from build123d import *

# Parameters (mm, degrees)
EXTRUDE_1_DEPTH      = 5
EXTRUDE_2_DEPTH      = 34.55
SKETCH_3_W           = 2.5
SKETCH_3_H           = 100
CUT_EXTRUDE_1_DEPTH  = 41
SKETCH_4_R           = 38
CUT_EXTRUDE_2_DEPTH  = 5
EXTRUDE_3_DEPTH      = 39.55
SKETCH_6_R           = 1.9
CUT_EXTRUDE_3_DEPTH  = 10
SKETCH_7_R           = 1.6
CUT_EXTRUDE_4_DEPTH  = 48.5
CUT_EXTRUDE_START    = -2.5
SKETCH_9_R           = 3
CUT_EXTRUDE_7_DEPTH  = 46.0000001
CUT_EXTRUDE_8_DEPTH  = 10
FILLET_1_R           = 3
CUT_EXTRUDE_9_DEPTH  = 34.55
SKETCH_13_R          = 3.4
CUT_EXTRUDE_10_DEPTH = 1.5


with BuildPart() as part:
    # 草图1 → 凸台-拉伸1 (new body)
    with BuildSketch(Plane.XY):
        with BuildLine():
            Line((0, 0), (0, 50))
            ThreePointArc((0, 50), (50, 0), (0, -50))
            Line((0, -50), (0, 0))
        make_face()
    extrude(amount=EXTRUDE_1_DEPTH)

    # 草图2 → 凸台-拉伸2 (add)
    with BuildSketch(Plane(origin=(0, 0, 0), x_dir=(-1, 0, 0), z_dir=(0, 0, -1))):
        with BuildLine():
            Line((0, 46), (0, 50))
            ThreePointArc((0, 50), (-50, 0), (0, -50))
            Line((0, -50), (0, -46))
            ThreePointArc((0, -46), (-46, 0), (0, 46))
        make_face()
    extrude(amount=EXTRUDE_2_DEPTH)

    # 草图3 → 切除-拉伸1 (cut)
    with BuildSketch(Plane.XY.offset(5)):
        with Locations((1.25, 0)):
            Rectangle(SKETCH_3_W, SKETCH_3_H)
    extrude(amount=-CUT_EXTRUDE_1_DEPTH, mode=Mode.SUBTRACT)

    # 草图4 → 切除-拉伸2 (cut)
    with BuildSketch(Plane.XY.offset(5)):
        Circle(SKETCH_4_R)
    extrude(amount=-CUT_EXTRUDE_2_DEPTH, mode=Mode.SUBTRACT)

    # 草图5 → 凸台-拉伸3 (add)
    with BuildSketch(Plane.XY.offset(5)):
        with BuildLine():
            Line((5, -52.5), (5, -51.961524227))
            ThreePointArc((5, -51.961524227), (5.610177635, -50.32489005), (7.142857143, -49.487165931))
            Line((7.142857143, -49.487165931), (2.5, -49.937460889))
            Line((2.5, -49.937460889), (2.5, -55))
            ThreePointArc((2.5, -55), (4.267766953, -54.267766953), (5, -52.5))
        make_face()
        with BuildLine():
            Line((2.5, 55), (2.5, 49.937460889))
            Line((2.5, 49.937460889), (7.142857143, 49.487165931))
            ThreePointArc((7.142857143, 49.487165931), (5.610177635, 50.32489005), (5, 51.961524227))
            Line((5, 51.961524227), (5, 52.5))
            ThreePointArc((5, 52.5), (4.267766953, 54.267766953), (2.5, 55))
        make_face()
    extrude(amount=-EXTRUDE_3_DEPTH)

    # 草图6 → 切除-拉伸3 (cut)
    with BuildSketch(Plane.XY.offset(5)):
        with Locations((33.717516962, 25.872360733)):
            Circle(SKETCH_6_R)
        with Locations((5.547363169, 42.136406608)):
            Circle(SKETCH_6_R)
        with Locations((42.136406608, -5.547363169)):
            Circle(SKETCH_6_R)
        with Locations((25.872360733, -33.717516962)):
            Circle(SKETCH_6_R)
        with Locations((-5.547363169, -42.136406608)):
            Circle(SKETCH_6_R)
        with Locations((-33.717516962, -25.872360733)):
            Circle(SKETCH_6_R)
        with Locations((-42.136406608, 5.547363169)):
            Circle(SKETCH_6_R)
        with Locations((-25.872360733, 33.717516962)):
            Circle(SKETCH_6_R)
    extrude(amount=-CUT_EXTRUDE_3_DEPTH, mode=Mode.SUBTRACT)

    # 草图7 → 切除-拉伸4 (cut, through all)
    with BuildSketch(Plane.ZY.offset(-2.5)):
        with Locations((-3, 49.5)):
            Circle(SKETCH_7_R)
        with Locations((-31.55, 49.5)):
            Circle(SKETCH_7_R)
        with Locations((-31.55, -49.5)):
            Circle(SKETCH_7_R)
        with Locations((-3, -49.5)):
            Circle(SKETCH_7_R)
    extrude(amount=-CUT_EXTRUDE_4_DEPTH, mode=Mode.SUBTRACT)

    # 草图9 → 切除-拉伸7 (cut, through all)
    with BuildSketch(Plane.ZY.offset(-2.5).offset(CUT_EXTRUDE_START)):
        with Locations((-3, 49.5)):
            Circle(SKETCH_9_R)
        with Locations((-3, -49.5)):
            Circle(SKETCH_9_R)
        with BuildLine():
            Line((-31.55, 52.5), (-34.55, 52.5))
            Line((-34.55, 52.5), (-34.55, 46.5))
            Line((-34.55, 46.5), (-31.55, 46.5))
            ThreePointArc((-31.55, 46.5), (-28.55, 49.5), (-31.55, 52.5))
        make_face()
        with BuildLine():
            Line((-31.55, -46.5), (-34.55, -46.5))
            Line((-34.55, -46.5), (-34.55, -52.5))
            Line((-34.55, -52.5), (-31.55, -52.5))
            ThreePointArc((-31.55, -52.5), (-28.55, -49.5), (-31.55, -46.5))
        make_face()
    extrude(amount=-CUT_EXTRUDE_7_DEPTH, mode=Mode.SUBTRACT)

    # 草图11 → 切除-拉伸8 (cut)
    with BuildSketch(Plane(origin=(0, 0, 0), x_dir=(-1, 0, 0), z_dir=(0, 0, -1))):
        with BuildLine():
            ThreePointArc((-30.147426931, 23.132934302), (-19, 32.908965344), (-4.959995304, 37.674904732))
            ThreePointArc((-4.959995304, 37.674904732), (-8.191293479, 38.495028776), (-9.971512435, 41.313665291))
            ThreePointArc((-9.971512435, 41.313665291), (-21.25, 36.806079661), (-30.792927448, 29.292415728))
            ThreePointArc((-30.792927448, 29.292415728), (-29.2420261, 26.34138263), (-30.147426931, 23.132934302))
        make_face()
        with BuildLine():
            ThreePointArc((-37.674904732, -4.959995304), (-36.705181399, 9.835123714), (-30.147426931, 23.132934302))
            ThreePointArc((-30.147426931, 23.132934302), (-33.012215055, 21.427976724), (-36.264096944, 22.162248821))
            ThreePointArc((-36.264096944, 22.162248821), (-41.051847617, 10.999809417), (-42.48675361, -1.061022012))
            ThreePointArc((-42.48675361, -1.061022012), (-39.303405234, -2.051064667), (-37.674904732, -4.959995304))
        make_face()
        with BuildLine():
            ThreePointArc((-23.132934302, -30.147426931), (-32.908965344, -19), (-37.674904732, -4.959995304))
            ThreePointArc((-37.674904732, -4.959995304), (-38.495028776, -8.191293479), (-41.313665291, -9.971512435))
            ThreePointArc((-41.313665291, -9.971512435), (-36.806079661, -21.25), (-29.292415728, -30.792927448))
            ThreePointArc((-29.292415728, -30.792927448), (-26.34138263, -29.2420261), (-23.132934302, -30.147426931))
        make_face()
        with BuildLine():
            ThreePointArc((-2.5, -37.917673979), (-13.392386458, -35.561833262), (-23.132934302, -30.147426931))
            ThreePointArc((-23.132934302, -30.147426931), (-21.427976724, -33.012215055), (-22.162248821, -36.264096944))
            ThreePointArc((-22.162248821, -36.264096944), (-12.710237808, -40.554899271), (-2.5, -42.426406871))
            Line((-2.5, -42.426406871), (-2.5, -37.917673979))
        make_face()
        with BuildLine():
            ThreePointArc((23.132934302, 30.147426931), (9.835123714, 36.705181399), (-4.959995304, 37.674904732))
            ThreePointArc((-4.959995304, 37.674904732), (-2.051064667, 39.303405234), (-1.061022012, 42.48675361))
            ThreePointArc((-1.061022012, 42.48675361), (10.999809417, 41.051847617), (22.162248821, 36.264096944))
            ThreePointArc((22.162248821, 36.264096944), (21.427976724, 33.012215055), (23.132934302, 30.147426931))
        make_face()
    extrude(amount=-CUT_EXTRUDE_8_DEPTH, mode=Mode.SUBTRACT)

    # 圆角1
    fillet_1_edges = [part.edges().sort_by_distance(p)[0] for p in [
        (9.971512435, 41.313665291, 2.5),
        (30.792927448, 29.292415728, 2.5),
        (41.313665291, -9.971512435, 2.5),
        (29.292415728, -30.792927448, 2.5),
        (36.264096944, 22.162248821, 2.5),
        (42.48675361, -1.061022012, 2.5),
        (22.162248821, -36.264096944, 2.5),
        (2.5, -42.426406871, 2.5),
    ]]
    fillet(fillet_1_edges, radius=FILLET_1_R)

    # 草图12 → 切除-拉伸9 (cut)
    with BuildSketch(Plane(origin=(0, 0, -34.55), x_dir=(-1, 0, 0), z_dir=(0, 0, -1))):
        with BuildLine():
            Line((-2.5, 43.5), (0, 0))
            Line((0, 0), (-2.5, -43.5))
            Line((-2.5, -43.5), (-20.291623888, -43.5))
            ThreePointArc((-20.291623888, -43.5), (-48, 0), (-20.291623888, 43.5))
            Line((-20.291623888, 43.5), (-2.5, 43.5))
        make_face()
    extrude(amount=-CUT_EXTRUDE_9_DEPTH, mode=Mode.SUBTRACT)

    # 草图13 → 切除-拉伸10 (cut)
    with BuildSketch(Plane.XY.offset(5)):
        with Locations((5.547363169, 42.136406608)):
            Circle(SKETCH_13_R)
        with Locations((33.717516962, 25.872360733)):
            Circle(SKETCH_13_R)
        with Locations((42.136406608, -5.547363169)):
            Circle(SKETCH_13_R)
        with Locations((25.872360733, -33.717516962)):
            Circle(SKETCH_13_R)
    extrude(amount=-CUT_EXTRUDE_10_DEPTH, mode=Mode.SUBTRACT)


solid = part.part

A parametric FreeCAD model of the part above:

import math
import FreeCAD as App
import Part
import Sketcher

V = App.Vector


def edges_at(feature, points):
    """Names of the edges that pass closest to the given points."""
    edges = feature.Shape.Edges
    near = lambda p: min(range(len(edges)), key=lambda i: edges[i].distToShape(Part.Vertex(*p))[0])
    return sorted({f"Edge{near(p) + 1}" for p in points})


def add_polygon(sketch, points):
    """Adds a closed chain of lines whose ends are joined by coincident constraints."""
    first, n = sketch.GeometryCount, len(points)
    for a, b in zip(points, points[1:] + points[:1]):
        sketch.addGeometry(Part.LineSegment(App.Vector(*a, 0), App.Vector(*b, 0)), False)
    for i in range(n):
        sketch.addConstraint(Sketcher.Constraint("Coincident", first + i, 2, first + (i + 1) % n, 1))

doc = App.newDocument("Part")
params = doc.addObject("Spreadsheet::Sheet", "Params")
for row, (alias, value) in enumerate([
    ("sketch1_radius", "50 mm"),
    ("pad1_length", "5 mm"),
    ("sketch2_radius", "50 mm"),
    ("sketch2_radius2", "46 mm"),
    ("pad2_length", "34.55 mm"),
    ("sketch3_height", "100 mm"),
    ("sketch3_width", "2.5 mm"),
    ("pocket1_length", "41 mm"),
    ("sketch4_diameter", "76 mm"),
    ("pocket2_length", "5 mm"),
    ("sketch5_radius", "2.5 mm"),
    ("pad3_length", "39.55 mm"),
    ("sketch6_diameter", "3.8 mm"),
    ("pocket3_length", "10 mm"),
    ("sketch7_diameter", "3.2 mm"),
    ("sketch8_diameter", "6 mm"),
    ("sketch8_height", "3 mm"),
    ("sketch9_radius", "38 mm"),
    ("sketch9_radius2", "4.5 mm"),
    ("sketch9_radius3", "42.5 mm"),
    ("pocket6_length", "10 mm"),
    ("fillet_radius", "3 mm"),
    ("sketch10_radius", "48 mm"),
    ("pocket7_length", "34.55 mm"),
    ("sketch11_diameter", "6.8 mm"),
    ("pocket8_length", "1.5 mm"),
], start=1):
    params.set(f"A{row}", alias)
    params.set(f"B{row}", "=" + value)
    params.setAlias(f"B{row}", alias)

body = doc.addObject("PartDesign::Body", "Body")

# Sketch on XY plane
sketch1 = body.newObject("Sketcher::SketchObject", "Sketch")
sketch1.AttachmentSupport = (doc.getObject("XY_Plane"), [""])
sketch1.MapMode = "FlatFace"
sketch1.addGeometry(Part.ArcOfCircle(Part.Circle(V(0, 0, 0), V(0, 0, 1), 50), math.radians(-90), math.radians(90)), False)
sketch1.addGeometry(Part.LineSegment(V(0, 50, 0), V(0, -50, 0)), False)
sketch1.addConstraint(Sketcher.Constraint("Coincident", 0, 1, 1, 2))
sketch1.addConstraint(Sketcher.Constraint("Coincident", 1, 1, 0, 2))
sketch1.addConstraint(Sketcher.Constraint("Vertical", 1))
sketch1.addConstraint(Sketcher.Constraint("Coincident", 0, 3, -1, 1))
sketch1.addConstraint(Sketcher.Constraint("PointOnObject", 0, 1, -2))
sketch1.addConstraint(Sketcher.Constraint("Radius", 0, 50.0))
sketch1.setExpression("Constraints[5]", "Params.sketch1_radius")
pad1 = body.newObject("PartDesign::Pad", "Pad")
pad1.Profile = sketch1
pad1.setExpression("Length", "Params.pad1_length")

# Sketch on XY plane
sketch2 = body.newObject("Sketcher::SketchObject", "Sketch001")
sketch2.AttachmentSupport = (doc.getObject("XY_Plane"), [""])
sketch2.MapMode = "FlatFace"
sketch2.addGeometry(Part.LineSegment(V(0, 46, 0), V(0, 50, 0)), False)
sketch2.addGeometry(Part.ArcOfCircle(Part.Circle(V(0, 0, 0), V(0, 0, 1), 50), math.radians(-90), math.radians(90)), False)
sketch2.addGeometry(Part.LineSegment(V(0, -50, 0), V(0, -46, 0)), False)
sketch2.addGeometry(Part.ArcOfCircle(Part.Circle(V(0, 0, 0), V(0, 0, 1), 46), math.radians(-90), math.radians(90)), False)
sketch2.addConstraint(Sketcher.Constraint("Coincident", 0, 2, 1, 2))
sketch2.addConstraint(Sketcher.Constraint("Coincident", 1, 1, 2, 1))
sketch2.addConstraint(Sketcher.Constraint("Coincident", 2, 2, 3, 1))
sketch2.addConstraint(Sketcher.Constraint("Coincident", 3, 2, 0, 1))
sketch2.addConstraint(Sketcher.Constraint("Vertical", 0))
sketch2.addConstraint(Sketcher.Constraint("Vertical", 2))
sketch2.addConstraint(Sketcher.Constraint("Coincident", 1, 3, -1, 1))
sketch2.addConstraint(Sketcher.Constraint("Coincident", 3, 3, -1, 1))
sketch2.addConstraint(Sketcher.Constraint("PointOnObject", 0, 2, -2))
sketch2.addConstraint(Sketcher.Constraint("PointOnObject", 1, 1, -2))
sketch2.addConstraint(Sketcher.Constraint("Radius", 1, 50.0))
sketch2.addConstraint(Sketcher.Constraint("Radius", 3, 46.0))
sketch2.setExpression("Constraints[10]", "Params.sketch2_radius")
sketch2.setExpression("Constraints[11]", "Params.sketch2_radius2")
pad2 = body.newObject("PartDesign::Pad", "Pad001")
pad2.Profile = sketch2
pad2.setExpression("Length", "Params.pad2_length")
pad2.Reversed = True

# Sketch on XY plane
sketch3 = body.newObject("Sketcher::SketchObject", "Sketch002")
sketch3.AttachmentSupport = (doc.getObject("XY_Plane"), [""])
sketch3.MapMode = "FlatFace"
sketch3.AttachmentOffset = App.Placement(V(0, 0, 5), App.Rotation())
add_polygon(sketch3, [(0, 50), (0, -50), (2.5, -50), (2.5, 50)])  # lines 0-3
sketch3.addConstraint(Sketcher.Constraint("Vertical", 0))
sketch3.addConstraint(Sketcher.Constraint("Horizontal", 1))
sketch3.addConstraint(Sketcher.Constraint("Vertical", 2))
sketch3.addConstraint(Sketcher.Constraint("Horizontal", 3))
sketch3.addConstraint(Sketcher.Constraint("Symmetric", 0, 2, 3, 2, -1, 1))
sketch3.addConstraint(Sketcher.Constraint("DistanceY", 0, 2, 0, 1, 100.0))
sketch3.addConstraint(Sketcher.Constraint("DistanceX", 1, 1, 1, 2, 2.5))
sketch3.setExpression("Constraints[9]", "Params.sketch3_height")
sketch3.setExpression("Constraints[10]", "Params.sketch3_width")
pocket1 = body.newObject("PartDesign::Pocket", "Pocket")
pocket1.Profile = sketch3
pocket1.setExpression("Length", "Params.pocket1_length")

# Sketch on XY plane
sketch4 = body.newObject("Sketcher::SketchObject", "Sketch003")
sketch4.AttachmentSupport = (doc.getObject("XY_Plane"), [""])
sketch4.MapMode = "FlatFace"
sketch4.AttachmentOffset = App.Placement(V(0, 0, 5), App.Rotation())
sketch4.addGeometry(Part.Circle(V(0, 0, 0), V(0, 0, 1), 38), False)
sketch4.addConstraint(Sketcher.Constraint("Coincident", 0, 3, -1, 1))
sketch4.addConstraint(Sketcher.Constraint("Diameter", 0, 76.0))
sketch4.setExpression("Constraints[1]", "Params.sketch4_diameter")
pocket2 = body.newObject("PartDesign::Pocket", "Pocket001")
pocket2.Profile = sketch4
pocket2.setExpression("Length", "Params.pocket2_length")

# Sketch on XY plane
sketch5 = body.newObject("Sketcher::SketchObject", "Sketch004")
sketch5.AttachmentSupport = (doc.getObject("XY_Plane"), [""])
sketch5.MapMode = "FlatFace"
sketch5.AttachmentOffset = App.Placement(V(0, 0, 5), App.Rotation())
sketch5.addGeometry(Part.LineSegment(V(5, -52.5, 0), V(5, -51.961524, 0)), False)
sketch5.addGeometry(Part.ArcOfCircle(Part.Circle(V(7.5, -51.961524, 0), V(0, 0, 1), 2.5), math.radians(98.213211), math.radians(180)), False)
sketch5.addGeometry(Part.LineSegment(V(7.142857, -49.487166, 0), V(2.5, -49.937461, 0)), False)
sketch5.addGeometry(Part.LineSegment(V(2.5, -49.937461, 0), V(2.5, -55, 0)), False)
sketch5.addGeometry(Part.ArcOfCircle(Part.Circle(V(2.5, -52.5, 0), V(0, 0, 1), 2.5), math.radians(-90), math.radians(0)), False)
sketch5.addGeometry(Part.LineSegment(V(2.5, 55, 0), V(2.5, 49.937461, 0)), False)
sketch5.addGeometry(Part.LineSegment(V(2.5, 49.937461, 0), V(7.142857, 49.487166, 0)), False)
sketch5.addGeometry(Part.ArcOfCircle(Part.Circle(V(7.5, 51.961524, 0), V(0, 0, 1), 2.5), math.radians(180), math.radians(261.786789)), False)
sketch5.addGeometry(Part.LineSegment(V(5, 51.961524, 0), V(5, 52.5, 0)), False)
sketch5.addGeometry(Part.ArcOfCircle(Part.Circle(V(2.5, 52.5, 0), V(0, 0, 1), 2.5), math.radians(0), math.radians(90)), False)
sketch5.addConstraint(Sketcher.Constraint("Tangent", 0, 2, 1, 2))
sketch5.addConstraint(Sketcher.Constraint("Coincident", 1, 1, 2, 1))
sketch5.addConstraint(Sketcher.Constraint("Coincident", 2, 2, 3, 1))
sketch5.addConstraint(Sketcher.Constraint("Coincident", 3, 2, 4, 1))
sketch5.addConstraint(Sketcher.Constraint("Tangent", 4, 2, 0, 1))
sketch5.addConstraint(Sketcher.Constraint("Coincident", 5, 2, 6, 1))
sketch5.addConstraint(Sketcher.Constraint("Coincident", 6, 2, 7, 2))
sketch5.addConstraint(Sketcher.Constraint("Tangent", 7, 1, 8, 1))
sketch5.addConstraint(Sketcher.Constraint("Tangent", 8, 2, 9, 1))
sketch5.addConstraint(Sketcher.Constraint("Coincident", 9, 2, 5, 1))
sketch5.addConstraint(Sketcher.Constraint("Vertical", 0))
sketch5.addConstraint(Sketcher.Constraint("Vertical", 3))
sketch5.addConstraint(Sketcher.Constraint("Vertical", 5))
sketch5.addConstraint(Sketcher.Constraint("Vertical", 8))
sketch5.addConstraint(Sketcher.Constraint("Equal", 1, 4))
sketch5.addConstraint(Sketcher.Constraint("Equal", 4, 7))
sketch5.addConstraint(Sketcher.Constraint("Equal", 7, 9))
sketch5.addConstraint(Sketcher.Constraint("Symmetric", 1, 3, 7, 3, -1))
sketch5.addConstraint(Sketcher.Constraint("Symmetric", 2, 2, 5, 2, -1))
sketch5.addConstraint(Sketcher.Constraint("Vertical", 9, 3, 2, 2))
sketch5.addConstraint(Sketcher.Constraint("Vertical", 1, 1, 6, 2))
sketch5.addConstraint(Sketcher.Constraint("Equal", 3, 5))
sketch5.addConstraint(Sketcher.Constraint("Radius", 1, 2.5))
sketch5.addConstraint(Sketcher.Constraint("DistanceX", -1, 1, 0, 2, 5.0))
sketch5.addConstraint(Sketcher.Constraint("DistanceY", 3, 2, -1, 1, 55.0))
sketch5.addConstraint(Sketcher.Constraint("DistanceY", 3, 2, 3, 1, 5.062539))
sketch5.addConstraint(Sketcher.Constraint("DistanceY", 0, 1, 0, 2, 0.538476))
sketch5.addConstraint(Sketcher.Constraint("DistanceY", 1, 3, 1, 1, 2.474358))
sketch5.setExpression("Constraints[22]", "Params.sketch5_radius")
pad3 = body.newObject("PartDesign::Pad", "Pad002")
pad3.Profile = sketch5
pad3.setExpression("Length", "Params.pad3_length")
pad3.Reversed = True

# Sketch on XY plane
sketch6 = body.newObject("Sketcher::SketchObject", "Sketch005")
sketch6.AttachmentSupport = (doc.getObject("XY_Plane"), [""])
sketch6.MapMode = "FlatFace"
sketch6.AttachmentOffset = App.Placement(V(0, 0, 5), App.Rotation())
sketch6.addGeometry(Part.Circle(V(33.717517, 25.872361, 0), V(0, 0, 1), 1.9), False)
sketch6.addGeometry(Part.Circle(V(5.547363, 42.136407, 0), V(0, 0, 1), 1.9), False)
sketch6.addGeometry(Part.Circle(V(42.136407, -5.547363, 0), V(0, 0, 1), 1.9), False)
sketch6.addGeometry(Part.Circle(V(25.872361, -33.717517, 0), V(0, 0, 1), 1.9), False)
sketch6.addGeometry(Part.Circle(V(-5.547363, -42.136407, 0), V(0, 0, 1), 1.9), False)
sketch6.addGeometry(Part.Circle(V(-33.717517, -25.872361, 0), V(0, 0, 1), 1.9), False)
sketch6.addGeometry(Part.Circle(V(-42.136407, 5.547363, 0), V(0, 0, 1), 1.9), False)
sketch6.addGeometry(Part.Circle(V(-25.872361, 33.717517, 0), V(0, 0, 1), 1.9), False)
sketch6.addConstraint(Sketcher.Constraint("Equal", 0, 1))
sketch6.addConstraint(Sketcher.Constraint("Equal", 1, 2))
sketch6.addConstraint(Sketcher.Constraint("Equal", 2, 3))
sketch6.addConstraint(Sketcher.Constraint("Equal", 3, 4))
sketch6.addConstraint(Sketcher.Constraint("Equal", 4, 5))
sketch6.addConstraint(Sketcher.Constraint("Equal", 5, 6))
sketch6.addConstraint(Sketcher.Constraint("Equal", 6, 7))
sketch6.addConstraint(Sketcher.Constraint("Symmetric", 1, 3, 4, 3, -1, 1))
sketch6.addConstraint(Sketcher.Constraint("Symmetric", 0, 3, 5, 3, -1, 1))
sketch6.addConstraint(Sketcher.Constraint("Symmetric", 2, 3, 6, 3, -1, 1))
sketch6.addConstraint(Sketcher.Constraint("Symmetric", 3, 3, 7, 3, -1, 1))
sketch6.addConstraint(Sketcher.Constraint("Diameter", 0, 3.8))
sketch6.addConstraint(Sketcher.Constraint("DistanceY", -1, 1, 0, 3, 25.872361))
sketch6.addConstraint(Sketcher.Constraint("DistanceX", -1, 1, 3, 3, 25.872361))
sketch6.addConstraint(Sketcher.Constraint("DistanceX", 0, 3, 2, 3, 8.41889))
sketch6.addConstraint(Sketcher.Constraint("DistanceY", 2, 3, 1, 3, 47.68377))
sketch6.addConstraint(Sketcher.Constraint("DistanceY", 4, 3, 3, 3, 8.41889))
sketch6.addConstraint(Sketcher.Constraint("DistanceX", 4, 3, 2, 3, 47.68377))
sketch6.addConstraint(Sketcher.Constraint("DistanceX", -1, 1, 0, 3, 33.717517))
sketch6.addConstraint(Sketcher.Constraint("DistanceY", -1, 1, 1, 3, 42.136407))
sketch6.setExpression("Constraints[11]", "Params.sketch6_diameter")
pocket3 = body.newObject("PartDesign::Pocket", "Pocket002")
pocket3.Profile = sketch6
pocket3.setExpression("Length", "Params.pocket3_length")

# Sketch on YZ plane
sketch7 = body.newObject("Sketcher::SketchObject", "Sketch006")
sketch7.AttachmentSupport = (doc.getObject("YZ_Plane"), [""])
sketch7.MapMode = "FlatFace"
sketch7.AttachmentOffset = App.Placement(V(0, 0, 2.5), App.Rotation())
sketch7.addGeometry(Part.Circle(V(49.5, -3, 0), V(0, 0, 1), 1.6), False)
sketch7.addGeometry(Part.Circle(V(49.5, -31.55, 0), V(0, 0, 1), 1.6), False)
sketch7.addGeometry(Part.Circle(V(-49.5, -31.55, 0), V(0, 0, 1), 1.6), False)
sketch7.addGeometry(Part.Circle(V(-49.5, -3, 0), V(0, 0, 1), 1.6), False)
sketch7.addConstraint(Sketcher.Constraint("Equal", 0, 1))
sketch7.addConstraint(Sketcher.Constraint("Equal", 1, 2))
sketch7.addConstraint(Sketcher.Constraint("Equal", 2, 3))
sketch7.addConstraint(Sketcher.Constraint("Symmetric", 1, 3, 2, 3, -2))
sketch7.addConstraint(Sketcher.Constraint("Symmetric", 0, 3, 3, 3, -2))
sketch7.addConstraint(Sketcher.Constraint("Vertical", 0, 3, 1, 3))
sketch7.addConstraint(Sketcher.Constraint("Diameter", 0, 3.2))
sketch7.addConstraint(Sketcher.Constraint("DistanceY", 0, 3, -1, 1, 3.0))
sketch7.addConstraint(Sketcher.Constraint("DistanceX", 2, 3, 1, 3, 99.0))
sketch7.addConstraint(Sketcher.Constraint("DistanceY", 1, 3, -1, 1, 31.55))
sketch7.setExpression("Constraints[6]", "Params.sketch7_diameter")
pocket4 = body.newObject("PartDesign::Pocket", "Pocket003")
pocket4.Profile = sketch7
pocket4.Type = "ThroughAll"
pocket4.Reversed = True

# Sketch on YZ plane
sketch8 = body.newObject("Sketcher::SketchObject", "Sketch007")
sketch8.AttachmentSupport = (doc.getObject("YZ_Plane"), [""])
sketch8.MapMode = "FlatFace"
sketch8.AttachmentOffset = App.Placement(V(0, 0, 5), App.Rotation())
sketch8.addGeometry(Part.Circle(V(49.5, -3, 0), V(0, 0, 1), 3), False)
sketch8.addGeometry(Part.Circle(V(-49.5, -3, 0), V(0, 0, 1), 3), False)
sketch8.addGeometry(Part.LineSegment(V(52.5, -31.55, 0), V(52.5, -34.55, 0)), False)
sketch8.addGeometry(Part.LineSegment(V(52.5, -34.55, 0), V(46.5, -34.55, 0)), False)
sketch8.addGeometry(Part.LineSegment(V(46.5, -34.55, 0), V(46.5, -31.55, 0)), False)
sketch8.addGeometry(Part.ArcOfCircle(Part.Circle(V(49.5, -31.55, 0), V(0, 0, 1), 3), math.radians(0), math.radians(180)), False)
sketch8.addGeometry(Part.LineSegment(V(-46.5, -31.55, 0), V(-46.5, -34.55, 0)), False)
sketch8.addGeometry(Part.LineSegment(V(-46.5, -34.55, 0), V(-52.5, -34.55, 0)), False)
sketch8.addGeometry(Part.LineSegment(V(-52.5, -34.55, 0), V(-52.5, -31.55, 0)), False)
sketch8.addGeometry(Part.ArcOfCircle(Part.Circle(V(-49.5, -31.55, 0), V(0, 0, 1), 3), math.radians(0), math.radians(180)), False)
sketch8.addConstraint(Sketcher.Constraint("Coincident", 2, 2, 3, 1))
sketch8.addConstraint(Sketcher.Constraint("Coincident", 3, 2, 4, 1))
sketch8.addConstraint(Sketcher.Constraint("Tangent", 4, 2, 5, 2))
sketch8.addConstraint(Sketcher.Constraint("Tangent", 5, 1, 2, 1))
sketch8.addConstraint(Sketcher.Constraint("Coincident", 6, 2, 7, 1))
sketch8.addConstraint(Sketcher.Constraint("Coincident", 7, 2, 8, 1))
sketch8.addConstraint(Sketcher.Constraint("Tangent", 8, 2, 9, 2))
sketch8.addConstraint(Sketcher.Constraint("Tangent", 9, 1, 6, 1))
sketch8.addConstraint(Sketcher.Constraint("Vertical", 2))
sketch8.addConstraint(Sketcher.Constraint("Horizontal", 3))
sketch8.addConstraint(Sketcher.Constraint("Vertical", 4))
sketch8.addConstraint(Sketcher.Constraint("Vertical", 6))
sketch8.addConstraint(Sketcher.Constraint("Horizontal", 7))
sketch8.addConstraint(Sketcher.Constraint("Vertical", 8))
sketch8.addConstraint(Sketcher.Constraint("Equal", 0, 1))
sketch8.addConstraint(Sketcher.Constraint("Equal", 1, 5))
sketch8.addConstraint(Sketcher.Constraint("Equal", 5, 9))
sketch8.addConstraint(Sketcher.Constraint("Symmetric", 0, 3, 1, 3, -2))
sketch8.addConstraint(Sketcher.Constraint("Symmetric", 5, 3, 9, 3, -2))
sketch8.addConstraint(Sketcher.Constraint("Horizontal", 3, 2, 6, 2))
sketch8.addConstraint(Sketcher.Constraint("Vertical", 0, 3, 5, 3))
sketch8.addConstraint(Sketcher.Constraint("Diameter", 0, 6.0))
sketch8.addConstraint(Sketcher.Constraint("DistanceY", 2, 2, 2, 1, 3.0))
sketch8.addConstraint(Sketcher.Constraint("DistanceY", 0, 3, -1, 1, 3.0))
sketch8.addConstraint(Sketcher.Constraint("DistanceX", 1, 3, 0, 3, 99.0))
sketch8.addConstraint(Sketcher.Constraint("DistanceY", 5, 3, -1, 1, 31.55))
sketch8.setExpression("Constraints[21]", "Params.sketch8_diameter")
sketch8.setExpression("Constraints[22]", "Params.sketch8_height")
pocket5 = body.newObject("PartDesign::Pocket", "Pocket004")
pocket5.Profile = sketch8
pocket5.Type = "ThroughAll"
pocket5.Reversed = True

# Sketch on XY plane
sketch9 = body.newObject("Sketcher::SketchObject", "Sketch008")
sketch9.AttachmentSupport = (doc.getObject("XY_Plane"), [""])
sketch9.MapMode = "FlatFace"
sketch9.addGeometry(Part.ArcOfCircle(Part.Circle(V(0, 0, 0), V(0, 0, 1), 38), math.radians(37.5), math.radians(82.5)), False)
sketch9.addGeometry(Part.ArcOfCircle(Part.Circle(V(5.547363, 42.136407, 0), V(0, 0, 1), 4.5), math.radians(-97.5), math.radians(-10.534725)), False)
sketch9.addGeometry(Part.ArcOfCircle(Part.Circle(V(0, 0, 0), V(0, 0, 1), 42.5), math.radians(43.569449), math.radians(76.430551)), False)
sketch9.addGeometry(Part.ArcOfCircle(Part.Circle(V(33.717517, 25.872361, 0), V(0, 0, 1), 4.5), math.radians(130.534725), math.radians(217.5)), False)
sketch9.addGeometry(Part.ArcOfCircle(Part.Circle(V(0, 0, 0), V(0, 0, 1), 38), math.radians(-7.5), math.radians(37.5)), False)
sketch9.addGeometry(Part.ArcOfCircle(Part.Circle(V(33.717517, 25.872361, 0), V(0, 0, 1), 4.5), math.radians(-142.5), math.radians(-55.534725)), False)
sketch9.addGeometry(Part.ArcOfCircle(Part.Circle(V(0, 0, 0), V(0, 0, 1), 42.5), math.radians(-1.430551), math.radians(31.430551)), False)
sketch9.addGeometry(Part.ArcOfCircle(Part.Circle(V(42.136407, -5.547363, 0), V(0, 0, 1), 4.5), math.radians(85.534725), math.radians(172.5)), False)
sketch9.addGeometry(Part.ArcOfCircle(Part.Circle(V(0, 0, 0), V(0, 0, 1), 38), math.radians(-52.5), math.radians(-7.5)), False)
sketch9.addGeometry(Part.ArcOfCircle(Part.Circle(V(42.136407, -5.547363, 0), V(0, 0, 1), 4.5), math.radians(172.5), math.radians(259.465275)), False)
sketch9.addGeometry(Part.ArcOfCircle(Part.Circle(V(0, 0, 0), V(0, 0, 1), 42.5), math.radians(-46.430551), math.radians(-13.569449)), False)
sketch9.addGeometry(Part.ArcOfCircle(Part.Circle(V(25.872361, -33.717517, 0), V(0, 0, 1), 4.5), math.radians(40.534725), math.radians(127.5)), False)
sketch9.addGeometry(Part.ArcOfCircle(Part.Circle(V(0, 0, 0), V(0, 0, 1), 38), math.radians(-86.227816), math.radians(-52.5)), False)
sketch9.addGeometry(Part.ArcOfCircle(Part.Circle(V(25.872361, -33.717517, 0), V(0, 0, 1), 4.5), math.radians(127.5), math.radians(214.465275)), False)
sketch9.addGeometry(Part.ArcOfCircle(Part.Circle(V(0, 0, 0), V(0, 0, 1), 42.5), math.radians(-86.627713), math.radians(-58.569449)), False)
sketch9.addGeometry(Part.LineSegment(V(2.5, -42.426407, 0), V(2.5, -37.917674, 0)), False)
sketch9.addGeometry(Part.ArcOfCircle(Part.Circle(V(0, 0, 0), V(0, 0, 1), 38), math.radians(82.5), math.radians(127.5)), False)
sketch9.addGeometry(Part.ArcOfCircle(Part.Circle(V(-25.872361, 33.717517, 0), V(0, 0, 1), 4.5), math.radians(-52.5), math.radians(34.465275)), False)
sketch9.addGeometry(Part.ArcOfCircle(Part.Circle(V(0, 0, 0), V(0, 0, 1), 42.5), math.radians(88.569449), math.radians(121.430551)), False)
sketch9.addGeometry(Part.ArcOfCircle(Part.Circle(V(5.547363, 42.136407, 0), V(0, 0, 1), 4.5), math.radians(175.534725), math.radians(262.5)), False)
sketch9.addConstraint(Sketcher.Constraint("Tangent", 0, 2, 1, 1))
sketch9.addConstraint(Sketcher.Constraint("Coincident", 1, 2, 2, 2))
sketch9.addConstraint(Sketcher.Constraint("Coincident", 2, 1, 3, 1))
sketch9.addConstraint(Sketcher.Constraint("Tangent", 3, 2, 0, 1))
sketch9.addConstraint(Sketcher.Constraint("Tangent", 4, 2, 5, 1))
sketch9.addConstraint(Sketcher.Constraint("Coincident", 5, 2, 6, 2))
sketch9.addConstraint(Sketcher.Constraint("Coincident", 6, 1, 7, 1))
sketch9.addConstraint(Sketcher.Constraint("Tangent", 7, 2, 4, 1))
sketch9.addConstraint(Sketcher.Constraint("Tangent", 8, 2, 9, 1))
sketch9.addConstraint(Sketcher.Constraint("Coincident", 9, 2, 10, 2))
sketch9.addConstraint(Sketcher.Constraint("Coincident", 10, 1, 11, 1))
sketch9.addConstraint(Sketcher.Constraint("Tangent", 11, 2, 8, 1))
sketch9.addConstraint(Sketcher.Constraint("Tangent", 12, 2, 13, 1))
sketch9.addConstraint(Sketcher.Constraint("Coincident", 13, 2, 14, 2))
sketch9.addConstraint(Sketcher.Constraint("Coincident", 14, 1, 15, 1))
sketch9.addConstraint(Sketcher.Constraint("Coincident", 15, 2, 12, 1))
sketch9.addConstraint(Sketcher.Constraint("Tangent", 16, 2, 17, 1))
sketch9.addConstraint(Sketcher.Constraint("Coincident", 17, 2, 18, 2))
sketch9.addConstraint(Sketcher.Constraint("Coincident", 18, 1, 19, 1))
sketch9.addConstraint(Sketcher.Constraint("Tangent", 19, 2, 16, 1))
sketch9.addConstraint(Sketcher.Constraint("Vertical", 15))
sketch9.addConstraint(Sketcher.Constraint("Coincident", 0, 3, -1, 1))
sketch9.addConstraint(Sketcher.Constraint("Coincident", 2, 3, -1, 1))
sketch9.addConstraint(Sketcher.Constraint("Coincident", 4, 3, -1, 1))
sketch9.addConstraint(Sketcher.Constraint("Coincident", 6, 3, -1, 1))
sketch9.addConstraint(Sketcher.Constraint("Coincident", 8, 3, -1, 1))
sketch9.addConstraint(Sketcher.Constraint("Coincident", 10, 3, -1, 1))
sketch9.addConstraint(Sketcher.Constraint("Coincident", 12, 3, -1, 1))
sketch9.addConstraint(Sketcher.Constraint("Coincident", 14, 3, -1, 1))
sketch9.addConstraint(Sketcher.Constraint("Coincident", 16, 3, -1, 1))
sketch9.addConstraint(Sketcher.Constraint("Coincident", 18, 3, -1, 1))
sketch9.addConstraint(Sketcher.Constraint("Coincident", 5, 3, 3, 3))
sketch9.addConstraint(Sketcher.Constraint("Coincident", 9, 3, 7, 3))
sketch9.addConstraint(Sketcher.Constraint("Coincident", 13, 3, 11, 3))
sketch9.addConstraint(Sketcher.Constraint("Coincident", 19, 3, 1, 3))
sketch9.addConstraint(Sketcher.Constraint("Equal", 1, 3))
sketch9.addConstraint(Sketcher.Constraint("Equal", 0, 4))
sketch9.addConstraint(Sketcher.Constraint("Equal", 2, 6))
sketch9.addConstraint(Sketcher.Constraint("Equal", 5, 7))
sketch9.addConstraint(Sketcher.Constraint("Equal", 4, 8))
sketch9.addConstraint(Sketcher.Constraint("Equal", 6, 10))
sketch9.addConstraint(Sketcher.Constraint("Equal", 9, 11))
sketch9.addConstraint(Sketcher.Constraint("Equal", 8, 12))
sketch9.addConstraint(Sketcher.Constraint("Equal", 10, 14))
sketch9.addConstraint(Sketcher.Constraint("Equal", 12, 16))
sketch9.addConstraint(Sketcher.Constraint("Equal", 13, 17))
sketch9.addConstraint(Sketcher.Constraint("Equal", 14, 18))
sketch9.addConstraint(Sketcher.Constraint("Radius", 0, 38.0))
sketch9.addConstraint(Sketcher.Constraint("Radius", 1, 4.5))
sketch9.addConstraint(Sketcher.Constraint("Radius", 2, 42.5))
sketch9.addConstraint(Sketcher.Constraint("DistanceX", -1, 1, 14, 1, 2.5))
sketch9.addConstraint(Sketcher.Constraint("DistanceX", 3, 2, 2, 1, 0.645501))
sketch9.addConstraint(Sketcher.Constraint("DistanceX", 7, 2, 7, 3, 4.461502))
sketch9.addConstraint(Sketcher.Constraint("DistanceY", 10, 1, 11, 2, 0.645501))
sketch9.addConstraint(Sketcher.Constraint("DistanceY", 19, 2, 19, 3, 4.461502))
sketch9.addConstraint(Sketcher.Constraint("DistanceX", 17, 3, -1, 1, 25.872361))
sketch9.setExpression("Constraints[47]", "Params.sketch9_radius")
sketch9.setExpression("Constraints[48]", "Params.sketch9_radius2")
sketch9.setExpression("Constraints[49]", "Params.sketch9_radius3")
pocket6 = body.newObject("PartDesign::Pocket", "Pocket005")
pocket6.Profile = sketch9
pocket6.setExpression("Length", "Params.pocket6_length")
pocket6.Reversed = True
doc.recompute()

fillet = body.newObject("PartDesign::Fillet", "Fillet")
fillet.Base = (pocket6, edges_at(pocket6, [
    (9.972, 41.314, 2.5),
    (30.793, 29.292, 2.5),
    (41.314, -9.972, 2.5),
    (29.292, -30.793, 2.5),
    (36.264, 22.162, 2.5),
    (42.487, -1.061, 2.5),
    (22.162, -36.264, 2.5),
    (2.5, -42.426, 2.5),
]))
fillet.setExpression("Radius", "Params.fillet_radius")

# Sketch on XY plane
sketch10 = body.newObject("Sketcher::SketchObject", "Sketch009")
sketch10.AttachmentSupport = (doc.getObject("XY_Plane"), [""])
sketch10.MapMode = "FlatFace"
sketch10.AttachmentOffset = App.Placement(V(0, 0, -34.55), App.Rotation())
sketch10.addGeometry(Part.LineSegment(V(0, 0, 0), V(2.5, 43.5, 0)), False)
sketch10.addGeometry(Part.LineSegment(V(2.5, 43.5, 0), V(20.291624, 43.5, 0)), False)
sketch10.addGeometry(Part.ArcOfCircle(Part.Circle(V(0, 0, 0), V(0, 0, 1), 48), math.radians(-64.992167), math.radians(64.992167)), False)
sketch10.addGeometry(Part.LineSegment(V(20.291624, -43.5, 0), V(2.5, -43.5, 0)), False)
sketch10.addGeometry(Part.LineSegment(V(2.5, -43.5, 0), V(0, 0, 0)), False)
sketch10.addConstraint(Sketcher.Constraint("Coincident", 0, 2, 1, 1))
sketch10.addConstraint(Sketcher.Constraint("Coincident", 1, 2, 2, 2))
sketch10.addConstraint(Sketcher.Constraint("Coincident", 2, 1, 3, 1))
sketch10.addConstraint(Sketcher.Constraint("Coincident", 3, 2, 4, 1))
sketch10.addConstraint(Sketcher.Constraint("Coincident", 4, 2, 0, 1))
sketch10.addConstraint(Sketcher.Constraint("Horizontal", 1))
sketch10.addConstraint(Sketcher.Constraint("Horizontal", 3))
sketch10.addConstraint(Sketcher.Constraint("Coincident", 2, 3, -1, 1))
sketch10.addConstraint(Sketcher.Constraint("Coincident", 4, 2, -1, 1))
sketch10.addConstraint(Sketcher.Constraint("Symmetric", 0, 2, 3, 2, -1))
sketch10.addConstraint(Sketcher.Constraint("Radius", 2, 48.0))
sketch10.addConstraint(Sketcher.Constraint("DistanceY", 2, 1, 1, 2, 87.0))
sketch10.addConstraint(Sketcher.Constraint("DistanceX", -1, 1, 0, 2, 2.5))
sketch10.setExpression("Constraints[10]", "Params.sketch10_radius")
pocket7 = body.newObject("PartDesign::Pocket", "Pocket006")
pocket7.Profile = sketch10
pocket7.setExpression("Length", "Params.pocket7_length")
pocket7.Reversed = True

# Sketch on XY plane
sketch11 = body.newObject("Sketcher::SketchObject", "Sketch010")
sketch11.AttachmentSupport = (doc.getObject("XY_Plane"), [""])
sketch11.MapMode = "FlatFace"
sketch11.AttachmentOffset = App.Placement(V(0, 0, 5), App.Rotation())
sketch11.addGeometry(Part.Circle(V(5.547363, 42.136407, 0), V(0, 0, 1), 3.4), False)
sketch11.addGeometry(Part.Circle(V(33.717517, 25.872361, 0), V(0, 0, 1), 3.4), False)
sketch11.addGeometry(Part.Circle(V(42.136407, -5.547363, 0), V(0, 0, 1), 3.4), False)
sketch11.addGeometry(Part.Circle(V(25.872361, -33.717517, 0), V(0, 0, 1), 3.4), False)
sketch11.addConstraint(Sketcher.Constraint("Equal", 0, 1))
sketch11.addConstraint(Sketcher.Constraint("Equal", 1, 2))
sketch11.addConstraint(Sketcher.Constraint("Equal", 2, 3))
sketch11.addConstraint(Sketcher.Constraint("Diameter", 0, 6.8))
sketch11.addConstraint(Sketcher.Constraint("DistanceY", -1, 1, 1, 3, 25.872361))
sketch11.addConstraint(Sketcher.Constraint("DistanceX", -1, 1, 3, 3, 25.872361))
sketch11.addConstraint(Sketcher.Constraint("DistanceX", 1, 3, 2, 3, 8.41889))
sketch11.addConstraint(Sketcher.Constraint("DistanceY", 2, 3, 0, 3, 47.68377))
sketch11.addConstraint(Sketcher.Constraint("DistanceX", -1, 1, 0, 3, 5.547363))
sketch11.addConstraint(Sketcher.Constraint("DistanceY", -1, 1, 0, 3, 42.136407))
sketch11.addConstraint(Sketcher.Constraint("DistanceX", -1, 1, 1, 3, 33.717517))
sketch11.addConstraint(Sketcher.Constraint("DistanceY", 3, 3, -1, 1, 33.717517))
sketch11.setExpression("Constraints[3]", "Params.sketch11_diameter")
pocket8 = body.newObject("PartDesign::Pocket", "Pocket007")
pocket8.Profile = sketch11
pocket8.setExpression("Length", "Params.pocket8_length")

doc.recompute()
